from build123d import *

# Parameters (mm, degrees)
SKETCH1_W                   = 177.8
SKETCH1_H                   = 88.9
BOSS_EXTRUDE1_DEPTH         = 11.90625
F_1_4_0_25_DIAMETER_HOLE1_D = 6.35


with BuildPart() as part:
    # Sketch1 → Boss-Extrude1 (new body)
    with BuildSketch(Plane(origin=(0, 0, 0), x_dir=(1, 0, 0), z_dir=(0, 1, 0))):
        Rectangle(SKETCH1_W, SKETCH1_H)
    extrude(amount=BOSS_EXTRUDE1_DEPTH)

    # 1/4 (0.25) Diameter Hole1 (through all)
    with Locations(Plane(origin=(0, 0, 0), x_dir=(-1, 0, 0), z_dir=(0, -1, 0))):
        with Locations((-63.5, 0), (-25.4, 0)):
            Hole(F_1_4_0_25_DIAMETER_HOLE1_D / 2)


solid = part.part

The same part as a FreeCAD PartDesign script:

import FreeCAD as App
import Part
import Sketcher
from FreeCAD import Vector
Q = App.Units.Quantity

doc = App.newDocument("Part")
body = doc.addObject("PartDesign::Body", "Body")

sketch1 = body.newObject("Sketcher::SketchObject", "Sketch")
sketch1.AttachmentSupport = (doc.getObject("XZ_Plane"), [""])
sketch1.MapMode = "FlatFace"
sketch1.addGeometry([
    Part.LineSegment(Vector(-89, -44, 0), Vector(-89, 44, 0)),
    Part.LineSegment(Vector(-89, 44, 0), Vector(89, 44, 0)),
    Part.LineSegment(Vector(89, 44, 0), Vector(89, -44, 0)),
    Part.LineSegment(Vector(89, -44, 0), Vector(-89, -44, 0)),
], False)
sketch1.addConstraint([
    Sketcher.Constraint("Coincident", 0, 2, 1, 1),
    Sketcher.Constraint("Coincident", 1, 2, 2, 1),
    Sketcher.Constraint("Coincident", 2, 2, 3, 1),
    Sketcher.Constraint("Coincident", 3, 2, 0, 1),
    Sketcher.Constraint("Vertical", 0),
    Sketcher.Constraint("Horizontal", 1),
    Sketcher.Constraint("Vertical", 2),
    Sketcher.Constraint("Horizontal", 3),
    Sketcher.Constraint("Symmetric", 0, 2, 2, 2, -1, 1),
    Sketcher.Constraint("DistanceX", 1, 1, 1, 2, Q("7 in")),
    Sketcher.Constraint("DistanceY", 0, 1, 0, 2, Q("3.5 in")),
])
pad1 = body.newObject("PartDesign::Pad", "Pad")
pad1.Profile = sketch1
pad1.Length = Q("0.46875 in")
pad1.Reversed = True

sketch2 = body.newObject("Sketcher::SketchObject", "Sketch001")
sketch2.AttachmentSupport = (doc.getObject("XZ_Plane"), [""])
sketch2.MapMode = "FlatFace"
sketch2.addGeometry([
    Part.Circle(Vector(63.5, 0, 0), Vector(0, 0, 1), 3.2),
    Part.Circle(Vector(25.4, 0, 0), Vector(0, 0, 1), 3.2),
], False)
sketch2.addConstraint([
    Sketcher.Constraint("Equal", 0, 1),
    Sketcher.Constraint("PointOnObject", 0, 3, -1),
    Sketcher.Constraint("PointOnObject", 1, 3, -1),
    Sketcher.Constraint("Diameter", 0, Q("0.25 in")),
    Sketcher.Constraint("DistanceX", -1, 1, 1, 3, Q("1 in")),
    Sketcher.Constraint("DistanceX", -1, 1, 0, 3, Q("2.5 in")),
])
doc.recompute()
hole = body.newObject("PartDesign::Hole", "Hole")
hole.Profile = sketch2
hole.ThreadType = "None"
hole.Diameter = Q("0.25 in")
hole.DepthType = "ThroughAll"

doc.recompute()
